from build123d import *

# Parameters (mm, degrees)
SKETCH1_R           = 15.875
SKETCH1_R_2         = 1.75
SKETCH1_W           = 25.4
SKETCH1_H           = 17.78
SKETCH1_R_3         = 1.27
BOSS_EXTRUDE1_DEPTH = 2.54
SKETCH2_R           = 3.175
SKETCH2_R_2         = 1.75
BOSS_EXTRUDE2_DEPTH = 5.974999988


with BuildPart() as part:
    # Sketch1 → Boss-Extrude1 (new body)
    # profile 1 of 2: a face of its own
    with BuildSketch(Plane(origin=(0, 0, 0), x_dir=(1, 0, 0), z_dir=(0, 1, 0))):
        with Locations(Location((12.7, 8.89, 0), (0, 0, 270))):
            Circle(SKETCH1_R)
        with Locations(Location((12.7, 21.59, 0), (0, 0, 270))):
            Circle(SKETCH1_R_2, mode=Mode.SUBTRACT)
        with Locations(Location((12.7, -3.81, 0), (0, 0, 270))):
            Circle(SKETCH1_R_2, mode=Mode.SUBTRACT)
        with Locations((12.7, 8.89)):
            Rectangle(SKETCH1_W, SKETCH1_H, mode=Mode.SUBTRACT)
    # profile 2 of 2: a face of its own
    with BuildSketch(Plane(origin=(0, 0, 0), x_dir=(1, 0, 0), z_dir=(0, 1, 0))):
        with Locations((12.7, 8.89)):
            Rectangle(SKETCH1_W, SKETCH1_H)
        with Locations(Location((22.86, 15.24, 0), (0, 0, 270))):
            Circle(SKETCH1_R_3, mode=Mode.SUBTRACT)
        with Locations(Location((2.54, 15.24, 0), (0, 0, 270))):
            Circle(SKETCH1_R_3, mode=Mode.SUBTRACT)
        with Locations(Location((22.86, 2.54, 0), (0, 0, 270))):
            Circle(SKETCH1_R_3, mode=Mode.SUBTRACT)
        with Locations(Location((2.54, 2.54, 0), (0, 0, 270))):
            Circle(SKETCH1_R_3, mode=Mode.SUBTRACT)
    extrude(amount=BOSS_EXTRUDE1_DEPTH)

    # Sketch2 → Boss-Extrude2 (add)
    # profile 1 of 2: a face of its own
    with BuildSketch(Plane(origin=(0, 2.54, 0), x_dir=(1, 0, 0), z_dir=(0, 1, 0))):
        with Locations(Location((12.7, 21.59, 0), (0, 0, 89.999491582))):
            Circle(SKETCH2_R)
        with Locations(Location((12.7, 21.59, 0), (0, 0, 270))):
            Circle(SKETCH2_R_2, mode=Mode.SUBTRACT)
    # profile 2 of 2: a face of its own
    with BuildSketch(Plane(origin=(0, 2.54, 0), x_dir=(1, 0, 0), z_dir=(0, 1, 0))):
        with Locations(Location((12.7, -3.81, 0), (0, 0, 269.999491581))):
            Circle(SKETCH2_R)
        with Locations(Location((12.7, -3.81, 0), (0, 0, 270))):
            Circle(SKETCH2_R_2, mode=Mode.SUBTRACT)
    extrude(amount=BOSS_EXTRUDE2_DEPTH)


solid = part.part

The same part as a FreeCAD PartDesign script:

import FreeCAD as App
import Part
import Sketcher
Q = App.Units.Quantity

doc = App.newDocument("Part")
params = doc.addObject("Spreadsheet::Sheet", "Params")
for row, (alias, value) in enumerate([
    ("sketch1_diameter", "0.1 in"),
    ("sketch1_diameter2", "1.25 in"),
    ("pad1_length", "0.1 in"),
    ("sketch2_diameter", "0.25 in"),
    ("pad2_length", "5.975 mm"),
], start=1):
    params.set(f"A{row}", alias)
    params.set(f"B{row}", "=" + value)
    params.setAlias(f"B{row}", alias)

body = doc.addObject("PartDesign::Body", "Body")

# Sketch on XZ plane
sketch1 = body.newObject("Sketcher::SketchObject", "Sketch")
sketch1.AttachmentSupport = (doc.getObject("XZ_Plane"), [""])
sketch1.MapMode = "FlatFace"
sketch1.addGeometry([
    Part.Circle(App.Vector(12.7, -8.9, 0), App.Vector(0, 0, 1), 15.9),  # 0
    Part.Circle(App.Vector(12.7, -21.6, 0), App.Vector(0, 0, 1), 1.8),  # 1
    Part.Circle(App.Vector(12.7, 3.8, 0), App.Vector(0, 0, 1), 1.8),  # 2
    Part.Circle(App.Vector(2.5, -2.5, 0), App.Vector(0, 0, 1), 1.3),  # 3
    Part.Circle(App.Vector(22.9, -15.2, 0), App.Vector(0, 0, 1), 1.3),  # 4
    Part.Circle(App.Vector(22.9, -2.5, 0), App.Vector(0, 0, 1), 1.3),  # 5
    Part.Circle(App.Vector(2.5, -15.2, 0), App.Vector(0, 0, 1), 1.3),  # 6
], False)
sketch1.addConstraint([
    Sketcher.Constraint("Equal", 1, 2),
    Sketcher.Constraint("Equal", 3, 4),
    Sketcher.Constraint("Equal", 4, 5),
    Sketcher.Constraint("Equal", 5, 6),
    Sketcher.Constraint("Horizontal", 3, 3, 5, 3),
    Sketcher.Constraint("Horizontal", 4, 3, 6, 3),
    Sketcher.Constraint("Vertical", 0, 3, 1, 3),
    Sketcher.Constraint("Vertical", 1, 3, 2, 3),
    Sketcher.Constraint("Vertical", 4, 3, 5, 3),
    Sketcher.Constraint("Vertical", 3, 3, 6, 3),
    Sketcher.Constraint("Diameter", 3, Q("0.1 in")),
    Sketcher.Constraint("Diameter", 0, Q("1.25 in")),
    Sketcher.Constraint("DistanceY", 1, 3, 2, 3, Q("1 in")),
    Sketcher.Constraint("DistanceX", -1, 1, 0, 3, Q("0.5 in")),
    Sketcher.Constraint("DistanceX", -1, 1, 3, 3, Q("0.1 in")),
    Sketcher.Constraint("DistanceY", 3, 3, -1, 1, Q("0.1 in")),
    Sketcher.Constraint("DistanceX", -1, 1, 4, 3, Q("0.9 in")),
    Sketcher.Constraint("DistanceY", 4, 3, -1, 1, Q("0.6 in")),
    Sketcher.Constraint("DistanceY", 1, 3, 0, 3, Q("0.5 in")),
    Sketcher.Constraint("Diameter", 1, Q("3.5 mm")),
    Sketcher.Constraint("DistanceY", 0, 3, -1, 1, Q("0.35 in")),
])
sketch1.setExpression("Constraints[10]", "Params.sketch1_diameter")
sketch1.setExpression("Constraints[11]", "Params.sketch1_diameter2")
pad1 = body.newObject("PartDesign::Pad", "Pad")
pad1.Profile = sketch1
pad1.setExpression("Length", "Params.pad1_length")
pad1.Reversed = True

# Sketch on XZ plane
sketch2 = body.newObject("Sketcher::SketchObject", "Sketch001")
sketch2.AttachmentSupport = (doc.getObject("XZ_Plane"), [""])
sketch2.MapMode = "FlatFace"
sketch2.AttachmentOffset = App.Placement(App.Vector(0, 0, -0.1 * 25.4), App.Rotation())
sketch2.addGeometry([
    Part.Circle(App.Vector(12.7, -21.6, 0), App.Vector(0, 0, 1), 3.2),
    Part.Circle(App.Vector(12.7, -21.6, 0), App.Vector(0, 0, 1), 1.8),
    Part.Circle(App.Vector(12.7, 3.8, 0), App.Vector(0, 0, 1), 3.2),
    Part.Circle(App.Vector(12.7, 3.8, 0), App.Vector(0, 0, 1), 1.8),
], False)
sketch2.addConstraint([
    Sketcher.Constraint("Coincident", 1, 3, 0, 3),
    Sketcher.Constraint("Coincident", 3, 3, 2, 3),
    Sketcher.Constraint("Equal", 0, 2),
    Sketcher.Constraint("Equal", 1, 3),
    Sketcher.Constraint("Vertical", 1, 3, 2, 3),
    Sketcher.Constraint("Diameter", 0, Q("0.25 in")),
    Sketcher.Constraint("DistanceY", 0, 3, 2, 3, Q("1 in")),
    Sketcher.Constraint("DistanceX", -1, 1, 0, 3, Q("0.5 in")),
    Sketcher.Constraint("Diameter", 1, Q("3.5 mm")),
    Sketcher.Constraint("DistanceY", 0, 3, -1, 1, Q("0.85 in")),
])
sketch2.setExpression("Constraints[5]", "Params.sketch2_diameter")
pad2 = body.newObject("PartDesign::Pad", "Pad001")
pad2.Profile = sketch2
pad2.setExpression("Length", "Params.pad2_length")
pad2.Reversed = True

doc.recompute()
